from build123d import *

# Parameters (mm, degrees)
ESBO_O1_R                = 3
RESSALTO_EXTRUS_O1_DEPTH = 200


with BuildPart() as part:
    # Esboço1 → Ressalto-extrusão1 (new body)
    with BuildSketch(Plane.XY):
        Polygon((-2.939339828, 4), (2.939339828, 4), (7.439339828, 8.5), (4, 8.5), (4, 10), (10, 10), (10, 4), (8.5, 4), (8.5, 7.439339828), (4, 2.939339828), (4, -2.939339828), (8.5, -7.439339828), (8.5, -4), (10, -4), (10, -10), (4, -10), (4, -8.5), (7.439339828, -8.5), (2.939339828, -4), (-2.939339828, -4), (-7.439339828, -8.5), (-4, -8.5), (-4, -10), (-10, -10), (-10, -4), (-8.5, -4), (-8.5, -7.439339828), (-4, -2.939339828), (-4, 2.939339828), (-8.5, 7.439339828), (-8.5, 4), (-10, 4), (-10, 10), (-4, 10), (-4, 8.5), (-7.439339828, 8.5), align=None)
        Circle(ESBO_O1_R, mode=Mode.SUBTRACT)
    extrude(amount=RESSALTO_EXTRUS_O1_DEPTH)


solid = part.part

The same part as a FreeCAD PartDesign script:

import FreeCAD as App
import Part
import Sketcher
Q = App.Units.Quantity


def add_polygon(sketch, points):
    """Adds a closed chain of lines whose ends are joined by coincident constraints."""
    first, n = sketch.GeometryCount, len(points)
    for a, b in zip(points, points[1:] + points[:1]):
        sketch.addGeometry(Part.LineSegment(App.Vector(*a, 0), App.Vector(*b, 0)), False)
    for i in range(n):
        sketch.addConstraint(Sketcher.Constraint("Coincident", first + i, 2, first + (i + 1) % n, 1))

doc = App.newDocument("Part")
body = doc.addObject("PartDesign::Body", "Body")

sketch1 = body.newObject("Sketcher::SketchObject", "Sketch")
sketch1.AttachmentSupport = (doc.getObject("XY_Plane"), [""])
sketch1.MapMode = "FlatFace"
add_polygon(sketch1, [(2.9, 4), (-2.9, 4), (-7.4, 8.5), (-4, 8.5), (-4, 10), (-10, 10), (-10, 4), (-8.5, 4), (-8.5, 7.4), (-4, 2.9), (-4, -2.9), (-8.5, -7.4), (-8.5, -4), (-10, -4), (-10, -10), (-4, -10), (-4, -8.5), (-7.4, -8.5), (-2.9, -4), (2.9, -4), (7.4, -8.5), (4, -8.5), (4, -10), (10, -10), (10, -4), (8.5, -4), (8.5, -7.4), (4, -2.9), (4, 2.9), (8.5, 7.4), (8.5, 4), (10, 4), (10, 10), (4, 10), (4, 8.5), (7.4, 8.5)])
sketch1.addGeometry(Part.Circle(App.Vector(0, 0, 0), App.Vector(0, 0, 1), 3), False)
sketch1.addConstraint([
    Sketcher.Constraint("Horizontal", 0),
    Sketcher.Constraint("Horizontal", 2),
    Sketcher.Constraint("Vertical", 3),
    Sketcher.Constraint("Horizontal", 4),
    Sketcher.Constraint("Vertical", 5),
    Sketcher.Constraint("Horizontal", 6),
    Sketcher.Constraint("Vertical", 7),
    Sketcher.Constraint("Vertical", 9),
    Sketcher.Constraint("Vertical", 11),
    Sketcher.Constraint("Horizontal", 12),
    Sketcher.Constraint("Vertical", 13),
    Sketcher.Constraint("Horizontal", 14),
    Sketcher.Constraint("Vertical", 15),
    Sketcher.Constraint("Horizontal", 16),
    Sketcher.Constraint("Horizontal", 18),
    Sketcher.Constraint("Horizontal", 20),
    Sketcher.Constraint("Vertical", 21),
    Sketcher.Constraint("Horizontal", 22),
    Sketcher.Constraint("Vertical", 23),
    Sketcher.Constraint("Horizontal", 24),
    Sketcher.Constraint("Vertical", 25),
    Sketcher.Constraint("Vertical", 27),
    Sketcher.Constraint("Vertical", 29),
    Sketcher.Constraint("Horizontal", 30),
    Sketcher.Constraint("Vertical", 31),
    Sketcher.Constraint("Horizontal", 32),
    Sketcher.Constraint("Vertical", 33),
    Sketcher.Constraint("Horizontal", 34),
    Sketcher.Constraint("Coincident", 36, 3, -1, 1),
    Sketcher.Constraint("Symmetric", 0, 2, 18, 2, -1, 1),
    Sketcher.Constraint("Symmetric", 1, 2, 19, 2, -1, 1),
    Sketcher.Constraint("Symmetric", 3, 2, 21, 2, -1, 1),
    Sketcher.Constraint("Symmetric", 5, 2, 23, 2, -1, 1),
    Sketcher.Constraint("Symmetric", 7, 2, 25, 2, -1, 1),
    Sketcher.Constraint("Symmetric", 8, 2, 26, 2, -1, 1),
    Sketcher.Constraint("Symmetric", 10, 2, 28, 2, -1, 1),
    Sketcher.Constraint("Symmetric", 12, 2, 30, 2, -1, 1),
    Sketcher.Constraint("Symmetric", 14, 2, 32, 2, -1, 1),
    Sketcher.Constraint("Symmetric", 16, 2, 34, 2, -1, 1),
    Sketcher.Constraint("Symmetric", 16, 2, 19, 2, -2),
    Sketcher.Constraint("Symmetric", 14, 2, 21, 2, -2),
    Sketcher.Constraint("Symmetric", 12, 2, 23, 2, -2),
    Sketcher.Constraint("Symmetric", 10, 2, 25, 2, -2),
    Sketcher.Constraint("Parallel", 1, 8),
    Sketcher.Constraint("Perpendicular", 8, 10),
    Sketcher.Constraint("Parallel", 10, 17),
    Sketcher.Constraint("Perpendicular", 26, 28),
    Sketcher.Constraint("Parallel", 28, 35),
    Sketcher.Constraint("Horizontal", 0, 2, 5, 2),
    Sketcher.Constraint("Horizontal", 9, 2, 26, 2),
    Sketcher.Constraint("Vertical", 3, 2, 8, 2),
    Sketcher.Constraint("Equal", 30, 3),
    Sketcher.Constraint("Equal", 32, 5),
    Sketcher.Constraint("Equal", 34, 7),
    Sketcher.Constraint("Equal", 18, 9),
    Sketcher.Constraint("Diameter", 36, Q("6 mm")),
    Sketcher.Constraint("DistanceX", 4, 2, 4, 1, Q("6 mm")),
    Sketcher.Constraint("DistanceX", 6, 1, 6, 2, Q("1.5 mm")),
    Sketcher.Constraint("DistanceY", -1, 1, 0, 2, Q("4 mm")),
    Sketcher.Constraint("DistanceX", 0, 2, 0, 1, Q("5.87868 mm")),
])
pad1 = body.newObject("PartDesign::Pad", "Pad")
pad1.Profile = sketch1
pad1.Length = 200

doc.recompute()
